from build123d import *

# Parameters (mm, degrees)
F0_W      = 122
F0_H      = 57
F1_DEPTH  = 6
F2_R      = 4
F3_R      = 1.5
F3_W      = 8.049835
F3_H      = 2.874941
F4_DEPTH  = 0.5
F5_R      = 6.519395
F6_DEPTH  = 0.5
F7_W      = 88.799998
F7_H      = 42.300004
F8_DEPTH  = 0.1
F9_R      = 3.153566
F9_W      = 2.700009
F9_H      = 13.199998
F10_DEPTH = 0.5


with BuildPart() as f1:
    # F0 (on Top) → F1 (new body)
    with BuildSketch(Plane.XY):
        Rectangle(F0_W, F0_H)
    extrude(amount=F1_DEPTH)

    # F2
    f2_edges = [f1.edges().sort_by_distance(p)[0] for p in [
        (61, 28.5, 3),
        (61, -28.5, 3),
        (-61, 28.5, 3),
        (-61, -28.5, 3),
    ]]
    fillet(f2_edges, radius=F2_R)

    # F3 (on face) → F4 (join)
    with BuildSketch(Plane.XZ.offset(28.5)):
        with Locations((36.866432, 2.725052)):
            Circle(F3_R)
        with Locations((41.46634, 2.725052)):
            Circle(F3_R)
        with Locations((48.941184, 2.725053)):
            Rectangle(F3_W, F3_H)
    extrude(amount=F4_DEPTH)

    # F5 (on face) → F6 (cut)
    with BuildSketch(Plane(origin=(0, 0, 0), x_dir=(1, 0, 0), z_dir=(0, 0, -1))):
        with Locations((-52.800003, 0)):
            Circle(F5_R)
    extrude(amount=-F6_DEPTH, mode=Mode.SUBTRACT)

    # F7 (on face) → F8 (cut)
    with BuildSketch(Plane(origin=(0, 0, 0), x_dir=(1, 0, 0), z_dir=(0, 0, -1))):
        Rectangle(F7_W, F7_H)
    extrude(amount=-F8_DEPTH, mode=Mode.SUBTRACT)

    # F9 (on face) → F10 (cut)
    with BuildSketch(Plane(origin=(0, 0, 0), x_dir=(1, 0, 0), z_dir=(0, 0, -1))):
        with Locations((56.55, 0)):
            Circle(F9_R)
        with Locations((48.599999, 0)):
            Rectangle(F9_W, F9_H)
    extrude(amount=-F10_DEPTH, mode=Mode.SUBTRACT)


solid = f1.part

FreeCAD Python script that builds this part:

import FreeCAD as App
import Part
import Sketcher
from FreeCAD import Vector
Q = App.Units.Quantity


def edges_at(feature, points):
    """Names of the edges that pass closest to the given points."""
    edges = feature.Shape.Edges
    near = lambda p: min(range(len(edges)), key=lambda i: edges[i].distToShape(Part.Vertex(*p))[0])
    return sorted({f"Edge{near(p) + 1}" for p in points})

doc = App.newDocument("Part")
body = doc.addObject("PartDesign::Body", "Body")

# Sketch on XY plane
sketch1 = body.newObject("Sketcher::SketchObject", "Sketch")
sketch1.AttachmentSupport = (doc.getObject("XY_Plane"), [""])
sketch1.MapMode = "FlatFace"
sketch1.addGeometry(Part.LineSegment(Vector(-61, 28, 0), Vector(-61, -28, 0)), False)
sketch1.addGeometry(Part.LineSegment(Vector(-61, -28, 0), Vector(61, -28, 0)), False)
sketch1.addGeometry(Part.LineSegment(Vector(61, -28, 0), Vector(61, 28, 0)), False)
sketch1.addGeometry(Part.LineSegment(Vector(61, 28, 0), Vector(-61, 28, 0)), False)
sketch1.addConstraint(Sketcher.Constraint("Coincident", 0, 2, 1, 1))
sketch1.addConstraint(Sketcher.Constraint("Coincident", 1, 2, 2, 1))
sketch1.addConstraint(Sketcher.Constraint("Coincident", 2, 2, 3, 1))
sketch1.addConstraint(Sketcher.Constraint("Coincident", 3, 2, 0, 1))
sketch1.addConstraint(Sketcher.Constraint("Vertical", 0))
sketch1.addConstraint(Sketcher.Constraint("Horizontal", 1))
sketch1.addConstraint(Sketcher.Constraint("Vertical", 2))
sketch1.addConstraint(Sketcher.Constraint("Horizontal", 3))
sketch1.addConstraint(Sketcher.Constraint("Symmetric", 0, 2, 2, 2, -1, 1))
sketch1.addConstraint(Sketcher.Constraint("DistanceX", 1, 1, 1, 2, Q("122 mm")))
sketch1.addConstraint(Sketcher.Constraint("DistanceY", 0, 2, 0, 1, Q("57 mm")))
pad1 = body.newObject("PartDesign::Pad", "Pad")
pad1.Profile = sketch1
pad1.Length = 6
doc.recompute()

fillet = body.newObject("PartDesign::Fillet", "Fillet")
fillet.Base = (pad1, edges_at(pad1, [
    (61, 28.5, 3),
    (61, -28.5, 3),
    (-61, 28.5, 3),
    (-61, -28.5, 3),
]))
fillet.Radius = 4

# Sketch on XZ plane
sketch2 = body.newObject("Sketcher::SketchObject", "Sketch001")
sketch2.AttachmentSupport = (doc.getObject("XZ_Plane"), [""])
sketch2.MapMode = "FlatFace"
sketch2.AttachmentOffset = App.Placement(Vector(0, 0, 28.5), App.Rotation())
sketch2.addGeometry(Part.Circle(Vector(36.9, 2.7, 0), Vector(0, 0, 1), 1.5), False)
sketch2.addGeometry(Part.Circle(Vector(41.5, 2.7, 0), Vector(0, 0, 1), 1.5), False)
sketch2.addGeometry(Part.LineSegment(Vector(44.9, 4.2, 0), Vector(44.9, 1.3, 0)), False)
sketch2.addGeometry(Part.LineSegment(Vector(44.9, 1.3, 0), Vector(53, 1.3, 0)), False)
sketch2.addGeometry(Part.LineSegment(Vector(53, 1.3, 0), Vector(53, 4.2, 0)), False)
sketch2.addGeometry(Part.LineSegment(Vector(53, 4.2, 0), Vector(44.9, 4.2, 0)), False)
sketch2.addConstraint(Sketcher.Constraint("Coincident", 2, 2, 3, 1))
sketch2.addConstraint(Sketcher.Constraint("Coincident", 3, 2, 4, 1))
sketch2.addConstraint(Sketcher.Constraint("Coincident", 4, 2, 5, 1))
sketch2.addConstraint(Sketcher.Constraint("Coincident", 5, 2, 2, 1))
sketch2.addConstraint(Sketcher.Constraint("Vertical", 2))
sketch2.addConstraint(Sketcher.Constraint("Horizontal", 3))
sketch2.addConstraint(Sketcher.Constraint("Vertical", 4))
sketch2.addConstraint(Sketcher.Constraint("Horizontal", 5))
sketch2.addConstraint(Sketcher.Constraint("Equal", 0, 1))
sketch2.addConstraint(Sketcher.Constraint("Horizontal", 0, 3, 1, 3))
sketch2.addConstraint(Sketcher.Constraint("Diameter", 0, Q("3 mm")))
sketch2.addConstraint(Sketcher.Constraint("DistanceY", 2, 2, 2, 1, Q("2.874941 mm")))
sketch2.addConstraint(Sketcher.Constraint("DistanceX", -1, 1, 3, 2, Q("52.966102 mm")))
sketch2.addConstraint(Sketcher.Constraint("DistanceX", 3, 1, 3, 2, Q("8.049835 mm")))
sketch2.addConstraint(Sketcher.Constraint("DistanceY", -1, 1, 0, 3, Q("2.725052 mm")))
sketch2.addConstraint(Sketcher.Constraint("DistanceX", -1, 1, 1, 3, Q("41.46634 mm")))
sketch2.addConstraint(Sketcher.Constraint("DistanceY", 2, 2, 1, 3, Q("1.437469 mm")))
sketch2.addConstraint(Sketcher.Constraint("DistanceX", 0, 3, 3, 2, Q("16.099669 mm")))
pad2 = body.newObject("PartDesign::Pad", "Pad001")
pad2.Profile = sketch2
pad2.Length = 0.5

# Sketch on XY plane
sketch3 = body.newObject("Sketcher::SketchObject", "Sketch002")
sketch3.AttachmentSupport = (doc.getObject("XY_Plane"), [""])
sketch3.MapMode = "FlatFace"
sketch3.addGeometry(Part.Circle(Vector(-53, 0, 0), Vector(0, 0, 1), 7), False)
sketch3.addConstraint(Sketcher.Constraint("PointOnObject", 0, 3, -1))
sketch3.addConstraint(Sketcher.Constraint("Diameter", 0, Q("13.03879 mm")))
sketch3.addConstraint(Sketcher.Constraint("DistanceX", 0, 3, -1, 1, Q("52.800003 mm")))
pocket1 = body.newObject("PartDesign::Pocket", "Pocket")
pocket1.Profile = sketch3
pocket1.Length = 0.5
pocket1.Reversed = True

# Sketch on XY plane
sketch4 = body.newObject("Sketcher::SketchObject", "Sketch003")
sketch4.AttachmentSupport = (doc.getObject("XY_Plane"), [""])
sketch4.MapMode = "FlatFace"
sketch4.addGeometry(Part.LineSegment(Vector(-44, -21, 0), Vector(-44, 21, 0)), False)
sketch4.addGeometry(Part.LineSegment(Vector(-44, 21, 0), Vector(44, 21, 0)), False)
sketch4.addGeometry(Part.LineSegment(Vector(44, 21, 0), Vector(44, -21, 0)), False)
sketch4.addGeometry(Part.LineSegment(Vector(44, -21, 0), Vector(-44, -21, 0)), False)
sketch4.addConstraint(Sketcher.Constraint("Coincident", 0, 2, 1, 1))
sketch4.addConstraint(Sketcher.Constraint("Coincident", 1, 2, 2, 1))
sketch4.addConstraint(Sketcher.Constraint("Coincident", 2, 2, 3, 1))
sketch4.addConstraint(Sketcher.Constraint("Coincident", 3, 2, 0, 1))
sketch4.addConstraint(Sketcher.Constraint("Vertical", 0))
sketch4.addConstraint(Sketcher.Constraint("Horizontal", 1))
sketch4.addConstraint(Sketcher.Constraint("Vertical", 2))
sketch4.addConstraint(Sketcher.Constraint("Horizontal", 3))
sketch4.addConstraint(Sketcher.Constraint("Symmetric", 0, 2, 2, 2, -1, 1))
sketch4.addConstraint(Sketcher.Constraint("DistanceX", 1, 1, 1, 2, Q("88.799998 mm")))
sketch4.addConstraint(Sketcher.Constraint("DistanceY", 0, 1, 0, 2, Q("42.300004 mm")))
pocket2 = body.newObject("PartDesign::Pocket", "Pocket001")
pocket2.Profile = sketch4
pocket2.Length = 0.1
pocket2.Reversed = True

# Sketch on XY plane
sketch5 = body.newObject("Sketcher::SketchObject", "Sketch004")
sketch5.AttachmentSupport = (doc.getObject("XY_Plane"), [""])
sketch5.MapMode = "FlatFace"
sketch5.addGeometry(Part.Circle(Vector(56.5, 0, 0), Vector(0, 0, 1), 3.2), False)
sketch5.addGeometry(Part.LineSegment(Vector(47.2, -6.6, 0), Vector(47.2, 6.6, 0)), False)
sketch5.addGeometry(Part.LineSegment(Vector(47.2, 6.6, 0), Vector(50, 6.6, 0)), False)
sketch5.addGeometry(Part.LineSegment(Vector(50, 6.6, 0), Vector(50, -6.6, 0)), False)
sketch5.addGeometry(Part.LineSegment(Vector(50, -6.6, 0), Vector(47.2, -6.6, 0)), False)
sketch5.addConstraint(Sketcher.Constraint("Coincident", 1, 2, 2, 1))
sketch5.addConstraint(Sketcher.Constraint("Coincident", 2, 2, 3, 1))
sketch5.addConstraint(Sketcher.Constraint("Coincident", 3, 2, 4, 1))
sketch5.addConstraint(Sketcher.Constraint("Coincident", 4, 2, 1, 1))
sketch5.addConstraint(Sketcher.Constraint("Vertical", 1))
sketch5.addConstraint(Sketcher.Constraint("Horizontal", 2))
sketch5.addConstraint(Sketcher.Constraint("Vertical", 3))
sketch5.addConstraint(Sketcher.Constraint("Horizontal", 4))
sketch5.addConstraint(Sketcher.Constraint("PointOnObject", 0, 3, -1))
sketch5.addConstraint(Sketcher.Constraint("DistanceY", 1, 1, 1, 2, Q("13.199998 mm")))
sketch5.addConstraint(Sketcher.Constraint("DistanceY", -1, 1, 1, 2, Q("6.599999 mm")))
sketch5.addConstraint(Sketcher.Constraint("DistanceX", -1, 1, 0, 3, Q("56.55 mm")))
sketch5.addConstraint(Sketcher.Constraint("Diameter", 0, Q("6.307132 mm")))
sketch5.addConstraint(Sketcher.Constraint("DistanceX", 2, 1, 2, 2, Q("2.700009 mm")))
sketch5.addConstraint(Sketcher.Constraint("DistanceX", -1, 1, 1, 2, Q("47.249994 mm")))
pocket3 = body.newObject("PartDesign::Pocket", "Pocket002")
pocket3.Profile = sketch5
pocket3.Length = 0.5
pocket3.Reversed = True

doc.recompute()
